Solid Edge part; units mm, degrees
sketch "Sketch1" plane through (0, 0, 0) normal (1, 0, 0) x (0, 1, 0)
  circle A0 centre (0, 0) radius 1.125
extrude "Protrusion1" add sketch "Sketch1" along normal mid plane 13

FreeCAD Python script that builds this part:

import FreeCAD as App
import Part
import Sketcher

V = App.Vector

doc = App.newDocument("Part")
body = doc.addObject("PartDesign::Body", "Body")

sketch1 = body.newObject("Sketcher::SketchObject", "Sketch")
sketch1.AttachmentSupport = (doc.getObject("YZ_Plane"), [""])
sketch1.MapMode = "FlatFace"
sketch1.addGeometry(Part.Circle(V(0, 0, 0), V(0, 0, 1), 1.1), False)
sketch1.addConstraint(Sketcher.Constraint("Coincident", 0, 3, -1, 1))
sketch1.addConstraint(Sketcher.Constraint("Diameter", 0, 2.25))
pad1 = body.newObject("PartDesign::Pad", "Pad")
pad1.Profile = sketch1
pad1.Length = 13
pad1.Midplane = True

doc.recompute()
